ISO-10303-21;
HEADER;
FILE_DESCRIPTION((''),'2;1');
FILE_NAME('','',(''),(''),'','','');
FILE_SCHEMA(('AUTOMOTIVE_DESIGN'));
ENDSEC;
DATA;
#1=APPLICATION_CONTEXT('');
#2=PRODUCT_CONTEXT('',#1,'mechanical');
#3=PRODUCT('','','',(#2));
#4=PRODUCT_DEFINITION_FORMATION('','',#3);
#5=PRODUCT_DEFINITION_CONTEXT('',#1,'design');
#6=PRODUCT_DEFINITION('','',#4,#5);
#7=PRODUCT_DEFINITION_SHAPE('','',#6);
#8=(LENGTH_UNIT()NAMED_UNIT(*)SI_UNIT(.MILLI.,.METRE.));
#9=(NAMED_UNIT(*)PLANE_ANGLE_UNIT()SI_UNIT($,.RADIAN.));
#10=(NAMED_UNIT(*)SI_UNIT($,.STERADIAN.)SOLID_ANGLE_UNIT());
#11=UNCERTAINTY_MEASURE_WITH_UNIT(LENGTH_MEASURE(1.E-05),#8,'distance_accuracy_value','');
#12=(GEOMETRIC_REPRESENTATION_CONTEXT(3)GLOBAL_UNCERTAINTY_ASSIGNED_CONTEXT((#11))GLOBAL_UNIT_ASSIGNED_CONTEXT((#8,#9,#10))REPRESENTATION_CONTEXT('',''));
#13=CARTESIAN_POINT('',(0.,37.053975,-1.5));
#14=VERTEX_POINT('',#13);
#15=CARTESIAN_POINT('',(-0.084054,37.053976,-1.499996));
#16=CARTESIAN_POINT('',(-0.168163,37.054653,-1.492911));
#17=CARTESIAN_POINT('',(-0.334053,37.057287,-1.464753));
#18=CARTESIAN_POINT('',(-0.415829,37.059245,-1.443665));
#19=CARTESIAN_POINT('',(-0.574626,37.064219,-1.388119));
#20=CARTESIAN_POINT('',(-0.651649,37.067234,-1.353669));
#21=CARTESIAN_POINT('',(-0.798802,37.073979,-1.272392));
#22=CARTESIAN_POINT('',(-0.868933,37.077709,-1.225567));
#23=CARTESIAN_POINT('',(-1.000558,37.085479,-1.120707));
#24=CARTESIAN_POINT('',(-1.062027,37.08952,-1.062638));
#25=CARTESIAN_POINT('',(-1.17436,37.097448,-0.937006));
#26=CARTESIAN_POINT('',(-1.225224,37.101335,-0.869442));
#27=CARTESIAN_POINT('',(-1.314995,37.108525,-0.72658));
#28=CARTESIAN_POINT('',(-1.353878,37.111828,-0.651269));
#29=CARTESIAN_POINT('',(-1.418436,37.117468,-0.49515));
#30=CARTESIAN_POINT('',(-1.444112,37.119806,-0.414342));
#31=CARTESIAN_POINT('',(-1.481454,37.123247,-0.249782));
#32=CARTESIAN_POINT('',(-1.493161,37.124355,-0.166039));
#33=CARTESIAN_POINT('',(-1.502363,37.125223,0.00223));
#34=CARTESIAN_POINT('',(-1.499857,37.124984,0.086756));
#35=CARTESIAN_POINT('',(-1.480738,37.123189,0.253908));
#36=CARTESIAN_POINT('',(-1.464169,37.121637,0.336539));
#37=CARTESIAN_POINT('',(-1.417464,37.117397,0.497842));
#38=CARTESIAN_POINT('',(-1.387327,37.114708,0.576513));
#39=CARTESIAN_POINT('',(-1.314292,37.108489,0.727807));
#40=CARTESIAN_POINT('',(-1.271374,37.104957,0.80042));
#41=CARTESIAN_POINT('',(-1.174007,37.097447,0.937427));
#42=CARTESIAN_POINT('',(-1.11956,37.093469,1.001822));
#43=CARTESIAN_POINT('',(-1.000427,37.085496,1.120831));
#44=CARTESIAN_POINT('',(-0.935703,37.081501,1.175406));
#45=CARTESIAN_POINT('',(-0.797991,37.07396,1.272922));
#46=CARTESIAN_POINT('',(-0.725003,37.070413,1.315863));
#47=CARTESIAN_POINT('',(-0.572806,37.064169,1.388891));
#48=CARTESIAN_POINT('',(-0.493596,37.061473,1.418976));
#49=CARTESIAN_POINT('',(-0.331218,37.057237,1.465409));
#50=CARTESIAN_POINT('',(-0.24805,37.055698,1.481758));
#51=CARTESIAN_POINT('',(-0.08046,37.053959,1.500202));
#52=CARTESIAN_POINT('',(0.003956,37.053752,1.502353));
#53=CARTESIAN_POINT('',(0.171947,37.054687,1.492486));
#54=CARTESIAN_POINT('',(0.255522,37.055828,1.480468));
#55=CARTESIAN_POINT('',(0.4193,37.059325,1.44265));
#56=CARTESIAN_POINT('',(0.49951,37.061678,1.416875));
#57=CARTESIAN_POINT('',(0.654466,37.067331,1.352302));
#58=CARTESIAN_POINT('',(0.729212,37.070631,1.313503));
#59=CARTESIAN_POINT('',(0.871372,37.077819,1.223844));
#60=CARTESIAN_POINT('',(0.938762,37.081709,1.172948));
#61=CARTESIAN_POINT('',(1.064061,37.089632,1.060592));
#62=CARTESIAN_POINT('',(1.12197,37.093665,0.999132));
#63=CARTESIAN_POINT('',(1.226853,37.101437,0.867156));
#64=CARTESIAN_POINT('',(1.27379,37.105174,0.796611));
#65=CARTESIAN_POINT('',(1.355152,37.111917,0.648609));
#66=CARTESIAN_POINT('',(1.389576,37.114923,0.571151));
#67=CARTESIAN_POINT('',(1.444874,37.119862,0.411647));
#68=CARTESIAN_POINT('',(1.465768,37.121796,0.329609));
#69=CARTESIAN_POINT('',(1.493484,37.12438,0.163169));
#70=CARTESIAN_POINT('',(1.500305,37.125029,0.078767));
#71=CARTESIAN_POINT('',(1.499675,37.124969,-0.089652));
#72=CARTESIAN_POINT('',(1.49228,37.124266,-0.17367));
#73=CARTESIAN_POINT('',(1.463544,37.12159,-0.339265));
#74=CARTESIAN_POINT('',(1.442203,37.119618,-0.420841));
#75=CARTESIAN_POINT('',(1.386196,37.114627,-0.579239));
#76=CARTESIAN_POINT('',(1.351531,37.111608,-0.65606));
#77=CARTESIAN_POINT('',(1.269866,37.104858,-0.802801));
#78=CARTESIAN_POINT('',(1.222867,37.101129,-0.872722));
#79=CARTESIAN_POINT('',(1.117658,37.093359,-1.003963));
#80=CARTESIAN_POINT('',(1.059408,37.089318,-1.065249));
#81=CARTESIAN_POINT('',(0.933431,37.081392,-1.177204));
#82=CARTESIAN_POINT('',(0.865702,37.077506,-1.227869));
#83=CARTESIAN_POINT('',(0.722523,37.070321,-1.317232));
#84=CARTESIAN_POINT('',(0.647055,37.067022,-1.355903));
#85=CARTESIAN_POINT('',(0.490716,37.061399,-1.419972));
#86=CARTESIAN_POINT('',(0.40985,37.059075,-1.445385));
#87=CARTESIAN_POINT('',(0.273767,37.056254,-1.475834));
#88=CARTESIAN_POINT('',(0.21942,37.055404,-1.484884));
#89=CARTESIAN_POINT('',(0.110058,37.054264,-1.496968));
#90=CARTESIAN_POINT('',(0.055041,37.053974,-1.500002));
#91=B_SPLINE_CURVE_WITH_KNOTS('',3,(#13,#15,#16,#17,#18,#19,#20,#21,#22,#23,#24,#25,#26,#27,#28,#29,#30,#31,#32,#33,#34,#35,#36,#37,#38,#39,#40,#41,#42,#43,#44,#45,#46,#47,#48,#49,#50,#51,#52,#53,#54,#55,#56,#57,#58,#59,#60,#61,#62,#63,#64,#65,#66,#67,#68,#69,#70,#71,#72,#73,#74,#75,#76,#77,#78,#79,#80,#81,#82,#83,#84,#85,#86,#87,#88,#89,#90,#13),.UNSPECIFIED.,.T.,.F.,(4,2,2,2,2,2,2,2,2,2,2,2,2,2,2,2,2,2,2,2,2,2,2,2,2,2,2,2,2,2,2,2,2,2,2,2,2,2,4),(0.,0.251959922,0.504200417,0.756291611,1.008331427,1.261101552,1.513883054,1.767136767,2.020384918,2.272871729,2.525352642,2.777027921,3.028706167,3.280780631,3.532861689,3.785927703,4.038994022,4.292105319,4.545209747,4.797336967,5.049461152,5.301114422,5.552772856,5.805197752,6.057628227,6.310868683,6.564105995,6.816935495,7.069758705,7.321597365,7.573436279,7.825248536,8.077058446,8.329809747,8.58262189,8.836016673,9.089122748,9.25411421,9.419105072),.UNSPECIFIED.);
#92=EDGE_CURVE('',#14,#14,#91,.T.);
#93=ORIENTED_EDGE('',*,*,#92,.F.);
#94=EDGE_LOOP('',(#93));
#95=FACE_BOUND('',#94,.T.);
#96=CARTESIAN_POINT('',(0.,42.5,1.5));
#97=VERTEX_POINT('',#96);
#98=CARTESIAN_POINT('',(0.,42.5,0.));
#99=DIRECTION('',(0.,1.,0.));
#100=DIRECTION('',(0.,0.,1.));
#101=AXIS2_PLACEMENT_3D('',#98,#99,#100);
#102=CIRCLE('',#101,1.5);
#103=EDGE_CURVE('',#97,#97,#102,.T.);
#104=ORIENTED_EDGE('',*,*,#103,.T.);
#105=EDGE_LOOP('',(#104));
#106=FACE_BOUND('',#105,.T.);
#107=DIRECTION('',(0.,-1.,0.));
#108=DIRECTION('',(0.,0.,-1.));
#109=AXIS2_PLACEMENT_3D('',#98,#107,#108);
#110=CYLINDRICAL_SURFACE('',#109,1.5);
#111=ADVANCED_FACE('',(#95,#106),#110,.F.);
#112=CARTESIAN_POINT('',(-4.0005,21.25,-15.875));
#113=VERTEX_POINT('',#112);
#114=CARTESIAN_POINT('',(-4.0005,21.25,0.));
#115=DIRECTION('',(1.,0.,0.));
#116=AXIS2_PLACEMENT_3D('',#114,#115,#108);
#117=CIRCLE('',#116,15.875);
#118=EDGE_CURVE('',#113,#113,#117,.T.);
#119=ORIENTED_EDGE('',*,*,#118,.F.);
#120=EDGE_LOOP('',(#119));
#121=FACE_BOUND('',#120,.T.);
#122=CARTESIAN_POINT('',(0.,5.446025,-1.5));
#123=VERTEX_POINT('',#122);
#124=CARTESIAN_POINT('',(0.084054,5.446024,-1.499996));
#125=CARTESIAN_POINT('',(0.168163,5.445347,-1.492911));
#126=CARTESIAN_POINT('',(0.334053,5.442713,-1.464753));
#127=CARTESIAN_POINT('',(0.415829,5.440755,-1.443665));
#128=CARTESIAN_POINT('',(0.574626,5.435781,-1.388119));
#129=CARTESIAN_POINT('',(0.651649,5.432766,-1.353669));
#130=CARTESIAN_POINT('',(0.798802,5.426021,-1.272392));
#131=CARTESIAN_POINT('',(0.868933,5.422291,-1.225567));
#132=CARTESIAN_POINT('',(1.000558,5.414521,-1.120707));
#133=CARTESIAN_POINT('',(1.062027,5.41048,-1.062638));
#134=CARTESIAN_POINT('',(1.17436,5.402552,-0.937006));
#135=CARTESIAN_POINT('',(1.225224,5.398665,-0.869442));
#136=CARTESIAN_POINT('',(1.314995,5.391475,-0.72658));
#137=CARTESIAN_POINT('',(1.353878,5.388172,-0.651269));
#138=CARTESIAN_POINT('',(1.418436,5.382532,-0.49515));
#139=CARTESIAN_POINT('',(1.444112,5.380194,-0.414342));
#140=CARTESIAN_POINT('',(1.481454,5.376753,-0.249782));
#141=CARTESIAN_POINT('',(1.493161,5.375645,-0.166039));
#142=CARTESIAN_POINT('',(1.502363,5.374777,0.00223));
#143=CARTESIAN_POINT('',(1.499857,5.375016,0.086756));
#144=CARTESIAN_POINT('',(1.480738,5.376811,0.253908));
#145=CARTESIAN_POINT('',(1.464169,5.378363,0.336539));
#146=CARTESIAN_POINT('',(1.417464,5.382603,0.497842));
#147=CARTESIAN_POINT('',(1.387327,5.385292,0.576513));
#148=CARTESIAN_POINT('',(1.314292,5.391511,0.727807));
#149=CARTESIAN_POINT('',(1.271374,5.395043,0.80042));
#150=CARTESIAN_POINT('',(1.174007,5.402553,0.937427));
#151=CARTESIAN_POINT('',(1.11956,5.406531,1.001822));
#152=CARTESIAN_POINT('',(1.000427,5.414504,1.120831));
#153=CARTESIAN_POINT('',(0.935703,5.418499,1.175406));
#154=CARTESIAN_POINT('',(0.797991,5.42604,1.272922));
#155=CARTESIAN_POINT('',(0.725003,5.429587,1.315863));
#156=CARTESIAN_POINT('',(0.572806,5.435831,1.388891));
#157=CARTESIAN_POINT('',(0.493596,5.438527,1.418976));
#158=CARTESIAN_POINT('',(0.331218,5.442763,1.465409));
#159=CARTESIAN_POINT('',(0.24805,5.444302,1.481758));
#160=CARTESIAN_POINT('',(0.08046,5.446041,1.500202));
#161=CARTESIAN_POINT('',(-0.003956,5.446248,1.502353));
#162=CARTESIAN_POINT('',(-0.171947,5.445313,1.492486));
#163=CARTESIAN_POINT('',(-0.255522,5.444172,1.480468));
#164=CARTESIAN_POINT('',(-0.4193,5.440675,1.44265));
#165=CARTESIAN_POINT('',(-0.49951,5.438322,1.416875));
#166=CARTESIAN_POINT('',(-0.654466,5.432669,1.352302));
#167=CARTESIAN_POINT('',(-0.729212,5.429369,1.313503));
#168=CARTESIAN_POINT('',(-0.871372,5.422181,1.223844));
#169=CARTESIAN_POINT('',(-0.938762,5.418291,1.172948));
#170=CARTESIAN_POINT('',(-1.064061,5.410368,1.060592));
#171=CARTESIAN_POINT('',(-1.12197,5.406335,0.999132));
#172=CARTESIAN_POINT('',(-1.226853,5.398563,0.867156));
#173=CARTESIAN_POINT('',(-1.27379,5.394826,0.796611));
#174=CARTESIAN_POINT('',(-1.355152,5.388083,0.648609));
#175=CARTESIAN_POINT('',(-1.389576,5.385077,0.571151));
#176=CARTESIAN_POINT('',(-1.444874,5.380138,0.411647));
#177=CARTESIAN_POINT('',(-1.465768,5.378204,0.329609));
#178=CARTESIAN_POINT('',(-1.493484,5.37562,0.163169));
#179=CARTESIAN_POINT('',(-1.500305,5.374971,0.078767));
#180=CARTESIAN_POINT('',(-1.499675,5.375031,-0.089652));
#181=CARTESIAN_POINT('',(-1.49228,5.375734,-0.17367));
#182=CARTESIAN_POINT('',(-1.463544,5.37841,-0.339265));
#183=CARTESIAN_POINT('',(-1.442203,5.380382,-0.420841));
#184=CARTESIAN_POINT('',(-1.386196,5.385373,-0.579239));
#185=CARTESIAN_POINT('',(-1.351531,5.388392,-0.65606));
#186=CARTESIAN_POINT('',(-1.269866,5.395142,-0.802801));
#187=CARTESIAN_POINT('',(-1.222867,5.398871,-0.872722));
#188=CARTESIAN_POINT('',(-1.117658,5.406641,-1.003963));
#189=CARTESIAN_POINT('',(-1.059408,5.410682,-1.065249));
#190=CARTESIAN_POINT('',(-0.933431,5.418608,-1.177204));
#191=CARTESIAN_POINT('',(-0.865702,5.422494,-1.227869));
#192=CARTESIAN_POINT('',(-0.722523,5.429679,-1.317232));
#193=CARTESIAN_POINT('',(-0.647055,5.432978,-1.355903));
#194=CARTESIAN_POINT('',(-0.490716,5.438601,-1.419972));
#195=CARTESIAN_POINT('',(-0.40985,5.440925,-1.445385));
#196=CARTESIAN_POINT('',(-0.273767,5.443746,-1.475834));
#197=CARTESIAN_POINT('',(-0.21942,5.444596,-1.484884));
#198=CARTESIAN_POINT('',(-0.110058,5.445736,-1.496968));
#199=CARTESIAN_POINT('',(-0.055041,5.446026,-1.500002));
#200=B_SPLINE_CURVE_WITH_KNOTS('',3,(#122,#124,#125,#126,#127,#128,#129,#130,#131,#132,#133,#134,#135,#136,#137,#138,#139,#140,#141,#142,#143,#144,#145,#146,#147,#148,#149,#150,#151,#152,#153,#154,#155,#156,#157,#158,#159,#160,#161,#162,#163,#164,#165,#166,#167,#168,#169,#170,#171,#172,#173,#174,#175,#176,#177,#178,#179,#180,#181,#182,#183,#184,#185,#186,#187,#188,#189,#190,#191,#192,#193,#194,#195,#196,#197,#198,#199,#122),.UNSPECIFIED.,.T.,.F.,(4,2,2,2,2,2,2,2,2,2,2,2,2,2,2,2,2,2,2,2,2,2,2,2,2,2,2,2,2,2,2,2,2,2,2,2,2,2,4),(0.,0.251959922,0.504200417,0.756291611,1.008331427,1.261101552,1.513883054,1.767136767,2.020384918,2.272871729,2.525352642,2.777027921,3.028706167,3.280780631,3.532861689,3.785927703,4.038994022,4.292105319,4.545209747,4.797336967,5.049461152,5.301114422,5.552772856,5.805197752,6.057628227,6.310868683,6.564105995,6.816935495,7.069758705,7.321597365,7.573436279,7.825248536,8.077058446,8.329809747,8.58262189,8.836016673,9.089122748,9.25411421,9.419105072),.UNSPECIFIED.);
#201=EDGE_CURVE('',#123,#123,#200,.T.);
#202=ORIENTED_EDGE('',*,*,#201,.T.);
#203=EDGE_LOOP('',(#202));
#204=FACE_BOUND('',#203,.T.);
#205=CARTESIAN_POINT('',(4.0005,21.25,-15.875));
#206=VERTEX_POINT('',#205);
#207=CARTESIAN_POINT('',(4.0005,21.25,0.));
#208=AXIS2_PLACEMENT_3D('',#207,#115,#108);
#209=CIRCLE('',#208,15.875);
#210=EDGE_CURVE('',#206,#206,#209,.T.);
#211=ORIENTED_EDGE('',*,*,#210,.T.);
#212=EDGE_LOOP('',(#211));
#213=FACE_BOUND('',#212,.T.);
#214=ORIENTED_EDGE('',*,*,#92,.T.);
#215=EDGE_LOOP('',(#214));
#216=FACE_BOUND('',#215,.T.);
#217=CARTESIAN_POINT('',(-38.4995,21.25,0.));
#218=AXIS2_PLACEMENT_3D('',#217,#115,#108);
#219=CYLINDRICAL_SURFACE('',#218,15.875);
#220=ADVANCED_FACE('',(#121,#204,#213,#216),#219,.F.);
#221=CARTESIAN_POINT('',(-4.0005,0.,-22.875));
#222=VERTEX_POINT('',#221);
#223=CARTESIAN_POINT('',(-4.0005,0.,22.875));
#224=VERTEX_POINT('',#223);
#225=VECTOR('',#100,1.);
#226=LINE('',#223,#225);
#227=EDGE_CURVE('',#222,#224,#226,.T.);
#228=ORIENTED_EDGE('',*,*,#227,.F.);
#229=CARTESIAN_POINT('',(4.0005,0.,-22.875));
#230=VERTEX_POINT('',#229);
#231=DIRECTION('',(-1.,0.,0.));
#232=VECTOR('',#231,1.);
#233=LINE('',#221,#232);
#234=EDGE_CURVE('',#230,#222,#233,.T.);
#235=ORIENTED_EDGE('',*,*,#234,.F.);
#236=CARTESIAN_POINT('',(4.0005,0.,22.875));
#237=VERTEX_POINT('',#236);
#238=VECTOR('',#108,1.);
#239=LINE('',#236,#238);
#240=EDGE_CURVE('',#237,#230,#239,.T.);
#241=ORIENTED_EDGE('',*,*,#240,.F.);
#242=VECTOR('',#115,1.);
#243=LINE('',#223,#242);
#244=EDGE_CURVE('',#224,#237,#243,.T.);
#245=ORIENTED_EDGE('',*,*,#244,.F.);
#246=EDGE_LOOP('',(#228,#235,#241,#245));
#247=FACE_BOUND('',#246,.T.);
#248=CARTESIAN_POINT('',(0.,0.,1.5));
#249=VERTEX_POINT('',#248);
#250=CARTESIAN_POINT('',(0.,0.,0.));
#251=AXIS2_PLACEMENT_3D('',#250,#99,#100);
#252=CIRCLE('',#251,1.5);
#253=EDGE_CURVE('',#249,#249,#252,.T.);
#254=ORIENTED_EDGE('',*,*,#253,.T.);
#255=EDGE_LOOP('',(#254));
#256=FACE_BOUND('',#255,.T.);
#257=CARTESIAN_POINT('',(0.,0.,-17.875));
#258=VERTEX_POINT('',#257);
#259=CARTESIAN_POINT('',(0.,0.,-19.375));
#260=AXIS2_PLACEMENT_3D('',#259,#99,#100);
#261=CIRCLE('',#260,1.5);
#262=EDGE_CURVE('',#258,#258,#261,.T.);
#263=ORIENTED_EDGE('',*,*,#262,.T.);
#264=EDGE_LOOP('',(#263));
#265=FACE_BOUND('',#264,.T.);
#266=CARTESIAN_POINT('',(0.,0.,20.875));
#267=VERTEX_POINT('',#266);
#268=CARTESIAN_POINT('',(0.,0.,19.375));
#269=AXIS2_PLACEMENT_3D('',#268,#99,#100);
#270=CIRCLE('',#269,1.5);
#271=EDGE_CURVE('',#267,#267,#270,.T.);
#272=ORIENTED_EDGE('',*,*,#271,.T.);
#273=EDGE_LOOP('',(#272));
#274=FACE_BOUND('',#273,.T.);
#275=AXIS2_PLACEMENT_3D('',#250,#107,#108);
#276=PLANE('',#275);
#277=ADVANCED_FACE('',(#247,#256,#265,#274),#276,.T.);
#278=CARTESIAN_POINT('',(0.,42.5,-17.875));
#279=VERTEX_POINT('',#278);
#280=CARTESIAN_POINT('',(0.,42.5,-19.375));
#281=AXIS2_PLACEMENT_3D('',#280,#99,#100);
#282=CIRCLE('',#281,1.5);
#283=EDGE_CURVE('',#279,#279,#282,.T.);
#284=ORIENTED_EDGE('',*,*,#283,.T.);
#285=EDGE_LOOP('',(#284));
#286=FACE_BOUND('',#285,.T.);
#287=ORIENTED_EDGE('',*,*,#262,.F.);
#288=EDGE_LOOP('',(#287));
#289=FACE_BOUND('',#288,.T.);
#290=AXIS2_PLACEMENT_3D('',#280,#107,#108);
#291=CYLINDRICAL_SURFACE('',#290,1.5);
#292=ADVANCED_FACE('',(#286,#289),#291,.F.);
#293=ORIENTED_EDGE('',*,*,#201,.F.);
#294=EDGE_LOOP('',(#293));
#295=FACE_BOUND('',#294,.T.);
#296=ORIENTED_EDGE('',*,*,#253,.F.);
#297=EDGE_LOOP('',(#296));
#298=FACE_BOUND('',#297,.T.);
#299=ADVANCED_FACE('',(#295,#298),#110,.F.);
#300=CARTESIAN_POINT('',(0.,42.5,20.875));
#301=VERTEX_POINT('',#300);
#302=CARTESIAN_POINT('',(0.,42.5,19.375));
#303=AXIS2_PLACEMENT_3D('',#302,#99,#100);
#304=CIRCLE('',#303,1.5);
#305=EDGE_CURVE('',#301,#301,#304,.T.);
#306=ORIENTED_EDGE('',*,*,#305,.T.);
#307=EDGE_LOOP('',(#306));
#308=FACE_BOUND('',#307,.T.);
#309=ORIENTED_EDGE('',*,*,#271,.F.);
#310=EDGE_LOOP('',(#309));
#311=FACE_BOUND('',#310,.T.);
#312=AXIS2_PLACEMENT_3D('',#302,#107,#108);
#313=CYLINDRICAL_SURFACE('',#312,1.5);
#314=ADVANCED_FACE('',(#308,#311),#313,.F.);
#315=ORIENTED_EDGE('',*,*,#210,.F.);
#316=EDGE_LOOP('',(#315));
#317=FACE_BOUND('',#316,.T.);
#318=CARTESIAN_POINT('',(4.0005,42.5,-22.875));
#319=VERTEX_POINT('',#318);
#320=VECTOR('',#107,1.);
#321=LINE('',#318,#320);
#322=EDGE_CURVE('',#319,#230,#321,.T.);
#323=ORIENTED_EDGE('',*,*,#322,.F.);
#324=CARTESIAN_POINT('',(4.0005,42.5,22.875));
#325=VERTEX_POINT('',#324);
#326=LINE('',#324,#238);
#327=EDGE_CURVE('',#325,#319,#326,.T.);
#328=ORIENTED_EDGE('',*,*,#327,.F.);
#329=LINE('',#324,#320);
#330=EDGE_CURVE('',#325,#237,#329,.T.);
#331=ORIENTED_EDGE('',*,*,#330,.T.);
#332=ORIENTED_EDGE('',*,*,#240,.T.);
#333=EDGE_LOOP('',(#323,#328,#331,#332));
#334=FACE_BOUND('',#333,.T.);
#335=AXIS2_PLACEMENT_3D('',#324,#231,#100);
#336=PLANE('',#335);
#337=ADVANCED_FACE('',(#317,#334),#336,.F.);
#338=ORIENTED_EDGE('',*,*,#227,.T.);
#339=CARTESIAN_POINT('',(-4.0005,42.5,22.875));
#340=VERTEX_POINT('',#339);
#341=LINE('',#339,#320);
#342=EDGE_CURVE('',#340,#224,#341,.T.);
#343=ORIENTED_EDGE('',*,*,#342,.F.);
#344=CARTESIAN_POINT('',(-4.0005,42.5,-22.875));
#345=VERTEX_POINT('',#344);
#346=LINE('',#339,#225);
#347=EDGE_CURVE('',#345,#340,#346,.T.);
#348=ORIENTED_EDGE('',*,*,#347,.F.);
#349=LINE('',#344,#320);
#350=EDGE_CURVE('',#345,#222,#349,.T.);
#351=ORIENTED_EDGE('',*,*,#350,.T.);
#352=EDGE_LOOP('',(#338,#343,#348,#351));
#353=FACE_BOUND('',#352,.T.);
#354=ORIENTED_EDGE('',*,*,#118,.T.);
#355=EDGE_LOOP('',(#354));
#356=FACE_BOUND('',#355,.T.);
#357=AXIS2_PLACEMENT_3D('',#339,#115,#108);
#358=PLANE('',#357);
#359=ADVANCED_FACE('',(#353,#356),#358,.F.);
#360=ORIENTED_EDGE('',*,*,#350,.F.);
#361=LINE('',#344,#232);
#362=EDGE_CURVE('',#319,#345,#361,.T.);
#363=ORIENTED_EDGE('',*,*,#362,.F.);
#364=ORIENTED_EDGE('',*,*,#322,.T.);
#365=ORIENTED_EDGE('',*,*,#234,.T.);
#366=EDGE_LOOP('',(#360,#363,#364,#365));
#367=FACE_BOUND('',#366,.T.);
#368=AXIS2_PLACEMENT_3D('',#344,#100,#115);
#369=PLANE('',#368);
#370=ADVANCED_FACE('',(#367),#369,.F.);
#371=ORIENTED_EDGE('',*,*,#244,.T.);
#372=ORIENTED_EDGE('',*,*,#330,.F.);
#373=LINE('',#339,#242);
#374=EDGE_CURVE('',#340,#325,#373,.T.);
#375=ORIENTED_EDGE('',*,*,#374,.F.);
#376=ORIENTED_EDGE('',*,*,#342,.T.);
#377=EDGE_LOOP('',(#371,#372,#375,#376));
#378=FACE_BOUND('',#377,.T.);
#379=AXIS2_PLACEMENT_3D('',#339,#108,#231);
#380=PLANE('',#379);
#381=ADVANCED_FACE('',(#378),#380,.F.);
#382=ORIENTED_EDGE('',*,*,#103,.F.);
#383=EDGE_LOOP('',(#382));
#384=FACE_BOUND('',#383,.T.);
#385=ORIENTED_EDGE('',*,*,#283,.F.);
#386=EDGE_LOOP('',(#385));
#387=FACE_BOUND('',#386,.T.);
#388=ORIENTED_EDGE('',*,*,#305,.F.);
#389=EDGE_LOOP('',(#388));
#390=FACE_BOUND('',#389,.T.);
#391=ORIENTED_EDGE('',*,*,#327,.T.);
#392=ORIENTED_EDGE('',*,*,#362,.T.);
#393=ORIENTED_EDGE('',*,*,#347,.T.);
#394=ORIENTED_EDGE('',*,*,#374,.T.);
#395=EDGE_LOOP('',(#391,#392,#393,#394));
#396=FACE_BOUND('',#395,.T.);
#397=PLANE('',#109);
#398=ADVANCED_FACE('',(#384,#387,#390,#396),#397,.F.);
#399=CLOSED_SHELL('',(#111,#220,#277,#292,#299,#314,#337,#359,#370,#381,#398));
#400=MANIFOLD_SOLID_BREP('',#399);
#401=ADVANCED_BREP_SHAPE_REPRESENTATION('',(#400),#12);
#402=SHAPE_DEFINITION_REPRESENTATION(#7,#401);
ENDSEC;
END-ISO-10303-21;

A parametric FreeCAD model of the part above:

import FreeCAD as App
import Part
import Sketcher

V = App.Vector

doc = App.newDocument("Part")
body = doc.addObject("PartDesign::Body", "Body")

# Sketch on XZ plane
sketch1 = body.newObject("Sketcher::SketchObject", "Sketch")
sketch1.AttachmentSupport = (doc.getObject("XZ_Plane"), [""])
sketch1.MapMode = "FlatFace"
sketch1.addGeometry(Part.LineSegment(V(-4, -22.9, 0), V(-4, 22.9, 0)), False)
sketch1.addGeometry(Part.LineSegment(V(-4, 22.9, 0), V(4, 22.9, 0)), False)
sketch1.addGeometry(Part.LineSegment(V(4, 22.9, 0), V(4, -22.9, 0)), False)
sketch1.addGeometry(Part.LineSegment(V(4, -22.9, 0), V(-4, -22.9, 0)), False)
sketch1.addGeometry(Part.Circle(V(0, 19.4, 0), V(0, 0, 1), 1.5), False)
sketch1.addGeometry(Part.Circle(V(0, 0, 0), V(0, 0, 1), 1.5), False)
sketch1.addGeometry(Part.Circle(V(0, -19.4, 0), V(0, 0, 1), 1.5), False)
sketch1.addConstraint(Sketcher.Constraint("Coincident", 0, 2, 1, 1))
sketch1.addConstraint(Sketcher.Constraint("Coincident", 1, 2, 2, 1))
sketch1.addConstraint(Sketcher.Constraint("Coincident", 2, 2, 3, 1))
sketch1.addConstraint(Sketcher.Constraint("Coincident", 3, 2, 0, 1))
sketch1.addConstraint(Sketcher.Constraint("Vertical", 0))
sketch1.addConstraint(Sketcher.Constraint("Horizontal", 1))
sketch1.addConstraint(Sketcher.Constraint("Vertical", 2))
sketch1.addConstraint(Sketcher.Constraint("Horizontal", 3))
sketch1.addConstraint(Sketcher.Constraint("Coincident", 5, 3, -1, 1))
sketch1.addConstraint(Sketcher.Constraint("Equal", 4, 5))
sketch1.addConstraint(Sketcher.Constraint("Equal", 5, 6))
sketch1.addConstraint(Sketcher.Constraint("Symmetric", 4, 3, 6, 3, -1, 1))
sketch1.addConstraint(Sketcher.Constraint("Symmetric", 0, 2, 2, 2, -1, 1))
sketch1.addConstraint(Sketcher.Constraint("PointOnObject", 4, 3, -2))
sketch1.addConstraint(Sketcher.Constraint("Diameter", 4, 3.0))
sketch1.addConstraint(Sketcher.Constraint("DistanceY", 0, 1, 0, 2, 45.75))
sketch1.addConstraint(Sketcher.Constraint("DistanceY", 4, 3, 0, 2, 3.5))
sketch1.addConstraint(Sketcher.Constraint("DistanceX", 1, 1, 1, 2, 8.001))
pad1 = body.newObject("PartDesign::Pad", "Pad")
pad1.Profile = sketch1
pad1.Length = 42.5
pad1.Reversed = True

# Sketch on YZ plane
sketch2 = body.newObject("Sketcher::SketchObject", "Sketch001")
sketch2.AttachmentSupport = (doc.getObject("YZ_Plane"), [""])
sketch2.MapMode = "FlatFace"
sketch2.AttachmentOffset = App.Placement(V(0, 0, 4.0005), App.Rotation())
sketch2.addGeometry(Part.Circle(V(21, 0, 0), V(0, 0, 1), 16), False)
sketch2.addConstraint(Sketcher.Constraint("PointOnObject", 0, 3, -1))
sketch2.addConstraint(Sketcher.Constraint("Diameter", 0, 31.75))
sketch2.addConstraint(Sketcher.Constraint("DistanceX", -1, 1, 0, 3, 21.25))
pocket1 = body.newObject("PartDesign::Pocket", "Pocket")
pocket1.Profile = sketch2
pocket1.Length = 42.5

doc.recompute()
